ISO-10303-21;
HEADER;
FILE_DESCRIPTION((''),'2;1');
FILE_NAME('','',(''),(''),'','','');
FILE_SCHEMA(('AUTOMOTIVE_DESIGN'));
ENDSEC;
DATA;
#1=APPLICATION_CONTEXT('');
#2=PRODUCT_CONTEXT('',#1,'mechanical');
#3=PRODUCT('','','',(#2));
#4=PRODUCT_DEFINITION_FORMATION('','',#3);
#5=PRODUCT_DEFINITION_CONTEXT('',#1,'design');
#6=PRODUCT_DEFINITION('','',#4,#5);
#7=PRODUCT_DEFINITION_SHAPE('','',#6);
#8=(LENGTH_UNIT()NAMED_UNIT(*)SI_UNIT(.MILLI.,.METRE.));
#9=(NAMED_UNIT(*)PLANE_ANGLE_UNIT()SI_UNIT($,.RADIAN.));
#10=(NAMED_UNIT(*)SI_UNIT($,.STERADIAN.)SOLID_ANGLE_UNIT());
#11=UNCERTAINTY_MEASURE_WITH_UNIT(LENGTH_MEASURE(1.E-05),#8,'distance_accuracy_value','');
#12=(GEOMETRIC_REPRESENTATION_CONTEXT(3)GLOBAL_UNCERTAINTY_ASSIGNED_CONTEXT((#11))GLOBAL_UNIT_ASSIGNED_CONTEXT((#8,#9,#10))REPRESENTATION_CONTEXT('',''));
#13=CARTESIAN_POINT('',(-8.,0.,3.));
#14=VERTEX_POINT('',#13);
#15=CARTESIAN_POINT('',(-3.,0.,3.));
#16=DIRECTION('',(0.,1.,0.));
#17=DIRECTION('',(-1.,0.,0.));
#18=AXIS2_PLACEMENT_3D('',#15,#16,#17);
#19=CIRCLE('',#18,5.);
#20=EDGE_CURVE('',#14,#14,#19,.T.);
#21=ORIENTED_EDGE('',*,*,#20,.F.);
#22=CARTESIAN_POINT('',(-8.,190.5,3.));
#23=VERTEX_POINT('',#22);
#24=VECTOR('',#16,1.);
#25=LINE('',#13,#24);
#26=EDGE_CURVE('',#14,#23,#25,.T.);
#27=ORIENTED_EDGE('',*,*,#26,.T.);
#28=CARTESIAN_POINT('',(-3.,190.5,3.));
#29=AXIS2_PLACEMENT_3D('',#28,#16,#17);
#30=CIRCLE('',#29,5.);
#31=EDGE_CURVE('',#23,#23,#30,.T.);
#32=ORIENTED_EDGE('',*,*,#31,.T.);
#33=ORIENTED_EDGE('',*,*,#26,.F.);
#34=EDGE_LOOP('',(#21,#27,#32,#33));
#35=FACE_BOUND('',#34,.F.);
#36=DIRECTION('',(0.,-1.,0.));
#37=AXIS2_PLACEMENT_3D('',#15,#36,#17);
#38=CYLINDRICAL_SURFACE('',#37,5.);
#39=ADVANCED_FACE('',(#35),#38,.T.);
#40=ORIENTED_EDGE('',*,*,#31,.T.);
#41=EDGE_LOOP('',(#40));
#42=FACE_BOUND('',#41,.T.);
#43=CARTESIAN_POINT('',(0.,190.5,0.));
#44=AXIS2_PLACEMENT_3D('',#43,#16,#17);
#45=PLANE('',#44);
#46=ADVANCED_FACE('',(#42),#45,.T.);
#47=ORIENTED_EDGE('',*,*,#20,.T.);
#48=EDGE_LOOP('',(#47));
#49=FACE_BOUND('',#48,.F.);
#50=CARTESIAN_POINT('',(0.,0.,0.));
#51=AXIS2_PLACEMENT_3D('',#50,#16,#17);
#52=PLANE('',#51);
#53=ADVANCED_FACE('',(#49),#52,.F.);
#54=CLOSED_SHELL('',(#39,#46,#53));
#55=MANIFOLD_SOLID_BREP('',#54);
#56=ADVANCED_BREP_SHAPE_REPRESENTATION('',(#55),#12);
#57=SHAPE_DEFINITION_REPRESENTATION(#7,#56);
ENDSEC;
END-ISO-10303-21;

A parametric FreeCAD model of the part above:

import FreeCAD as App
import Part
import Sketcher

V = App.Vector
Q = App.Units.Quantity

doc = App.newDocument("Part")
body = doc.addObject("PartDesign::Body", "Body")

# Sketch on XZ plane
sketch1 = body.newObject("Sketcher::SketchObject", "Sketch")
sketch1.AttachmentSupport = (doc.getObject("XZ_Plane"), [""])
sketch1.MapMode = "FlatFace"
sketch1.addGeometry(Part.Circle(V(-3, 3, 0), V(0, 0, 1), 5), False)
sketch1.addConstraint(Sketcher.Constraint("Diameter", 0, Q("0.3937 in")))
sketch1.addConstraint(Sketcher.Constraint("DistanceX", 0, 3, -1, 1, Q("0.1181 in")))
sketch1.addConstraint(Sketcher.Constraint("DistanceY", -1, 1, 0, 3, Q("0.1181 in")))
pad1 = body.newObject("PartDesign::Pad", "Pad")
pad1.Profile = sketch1
pad1.Length = Q("7.5 in")
pad1.Reversed = True

doc.recompute()
